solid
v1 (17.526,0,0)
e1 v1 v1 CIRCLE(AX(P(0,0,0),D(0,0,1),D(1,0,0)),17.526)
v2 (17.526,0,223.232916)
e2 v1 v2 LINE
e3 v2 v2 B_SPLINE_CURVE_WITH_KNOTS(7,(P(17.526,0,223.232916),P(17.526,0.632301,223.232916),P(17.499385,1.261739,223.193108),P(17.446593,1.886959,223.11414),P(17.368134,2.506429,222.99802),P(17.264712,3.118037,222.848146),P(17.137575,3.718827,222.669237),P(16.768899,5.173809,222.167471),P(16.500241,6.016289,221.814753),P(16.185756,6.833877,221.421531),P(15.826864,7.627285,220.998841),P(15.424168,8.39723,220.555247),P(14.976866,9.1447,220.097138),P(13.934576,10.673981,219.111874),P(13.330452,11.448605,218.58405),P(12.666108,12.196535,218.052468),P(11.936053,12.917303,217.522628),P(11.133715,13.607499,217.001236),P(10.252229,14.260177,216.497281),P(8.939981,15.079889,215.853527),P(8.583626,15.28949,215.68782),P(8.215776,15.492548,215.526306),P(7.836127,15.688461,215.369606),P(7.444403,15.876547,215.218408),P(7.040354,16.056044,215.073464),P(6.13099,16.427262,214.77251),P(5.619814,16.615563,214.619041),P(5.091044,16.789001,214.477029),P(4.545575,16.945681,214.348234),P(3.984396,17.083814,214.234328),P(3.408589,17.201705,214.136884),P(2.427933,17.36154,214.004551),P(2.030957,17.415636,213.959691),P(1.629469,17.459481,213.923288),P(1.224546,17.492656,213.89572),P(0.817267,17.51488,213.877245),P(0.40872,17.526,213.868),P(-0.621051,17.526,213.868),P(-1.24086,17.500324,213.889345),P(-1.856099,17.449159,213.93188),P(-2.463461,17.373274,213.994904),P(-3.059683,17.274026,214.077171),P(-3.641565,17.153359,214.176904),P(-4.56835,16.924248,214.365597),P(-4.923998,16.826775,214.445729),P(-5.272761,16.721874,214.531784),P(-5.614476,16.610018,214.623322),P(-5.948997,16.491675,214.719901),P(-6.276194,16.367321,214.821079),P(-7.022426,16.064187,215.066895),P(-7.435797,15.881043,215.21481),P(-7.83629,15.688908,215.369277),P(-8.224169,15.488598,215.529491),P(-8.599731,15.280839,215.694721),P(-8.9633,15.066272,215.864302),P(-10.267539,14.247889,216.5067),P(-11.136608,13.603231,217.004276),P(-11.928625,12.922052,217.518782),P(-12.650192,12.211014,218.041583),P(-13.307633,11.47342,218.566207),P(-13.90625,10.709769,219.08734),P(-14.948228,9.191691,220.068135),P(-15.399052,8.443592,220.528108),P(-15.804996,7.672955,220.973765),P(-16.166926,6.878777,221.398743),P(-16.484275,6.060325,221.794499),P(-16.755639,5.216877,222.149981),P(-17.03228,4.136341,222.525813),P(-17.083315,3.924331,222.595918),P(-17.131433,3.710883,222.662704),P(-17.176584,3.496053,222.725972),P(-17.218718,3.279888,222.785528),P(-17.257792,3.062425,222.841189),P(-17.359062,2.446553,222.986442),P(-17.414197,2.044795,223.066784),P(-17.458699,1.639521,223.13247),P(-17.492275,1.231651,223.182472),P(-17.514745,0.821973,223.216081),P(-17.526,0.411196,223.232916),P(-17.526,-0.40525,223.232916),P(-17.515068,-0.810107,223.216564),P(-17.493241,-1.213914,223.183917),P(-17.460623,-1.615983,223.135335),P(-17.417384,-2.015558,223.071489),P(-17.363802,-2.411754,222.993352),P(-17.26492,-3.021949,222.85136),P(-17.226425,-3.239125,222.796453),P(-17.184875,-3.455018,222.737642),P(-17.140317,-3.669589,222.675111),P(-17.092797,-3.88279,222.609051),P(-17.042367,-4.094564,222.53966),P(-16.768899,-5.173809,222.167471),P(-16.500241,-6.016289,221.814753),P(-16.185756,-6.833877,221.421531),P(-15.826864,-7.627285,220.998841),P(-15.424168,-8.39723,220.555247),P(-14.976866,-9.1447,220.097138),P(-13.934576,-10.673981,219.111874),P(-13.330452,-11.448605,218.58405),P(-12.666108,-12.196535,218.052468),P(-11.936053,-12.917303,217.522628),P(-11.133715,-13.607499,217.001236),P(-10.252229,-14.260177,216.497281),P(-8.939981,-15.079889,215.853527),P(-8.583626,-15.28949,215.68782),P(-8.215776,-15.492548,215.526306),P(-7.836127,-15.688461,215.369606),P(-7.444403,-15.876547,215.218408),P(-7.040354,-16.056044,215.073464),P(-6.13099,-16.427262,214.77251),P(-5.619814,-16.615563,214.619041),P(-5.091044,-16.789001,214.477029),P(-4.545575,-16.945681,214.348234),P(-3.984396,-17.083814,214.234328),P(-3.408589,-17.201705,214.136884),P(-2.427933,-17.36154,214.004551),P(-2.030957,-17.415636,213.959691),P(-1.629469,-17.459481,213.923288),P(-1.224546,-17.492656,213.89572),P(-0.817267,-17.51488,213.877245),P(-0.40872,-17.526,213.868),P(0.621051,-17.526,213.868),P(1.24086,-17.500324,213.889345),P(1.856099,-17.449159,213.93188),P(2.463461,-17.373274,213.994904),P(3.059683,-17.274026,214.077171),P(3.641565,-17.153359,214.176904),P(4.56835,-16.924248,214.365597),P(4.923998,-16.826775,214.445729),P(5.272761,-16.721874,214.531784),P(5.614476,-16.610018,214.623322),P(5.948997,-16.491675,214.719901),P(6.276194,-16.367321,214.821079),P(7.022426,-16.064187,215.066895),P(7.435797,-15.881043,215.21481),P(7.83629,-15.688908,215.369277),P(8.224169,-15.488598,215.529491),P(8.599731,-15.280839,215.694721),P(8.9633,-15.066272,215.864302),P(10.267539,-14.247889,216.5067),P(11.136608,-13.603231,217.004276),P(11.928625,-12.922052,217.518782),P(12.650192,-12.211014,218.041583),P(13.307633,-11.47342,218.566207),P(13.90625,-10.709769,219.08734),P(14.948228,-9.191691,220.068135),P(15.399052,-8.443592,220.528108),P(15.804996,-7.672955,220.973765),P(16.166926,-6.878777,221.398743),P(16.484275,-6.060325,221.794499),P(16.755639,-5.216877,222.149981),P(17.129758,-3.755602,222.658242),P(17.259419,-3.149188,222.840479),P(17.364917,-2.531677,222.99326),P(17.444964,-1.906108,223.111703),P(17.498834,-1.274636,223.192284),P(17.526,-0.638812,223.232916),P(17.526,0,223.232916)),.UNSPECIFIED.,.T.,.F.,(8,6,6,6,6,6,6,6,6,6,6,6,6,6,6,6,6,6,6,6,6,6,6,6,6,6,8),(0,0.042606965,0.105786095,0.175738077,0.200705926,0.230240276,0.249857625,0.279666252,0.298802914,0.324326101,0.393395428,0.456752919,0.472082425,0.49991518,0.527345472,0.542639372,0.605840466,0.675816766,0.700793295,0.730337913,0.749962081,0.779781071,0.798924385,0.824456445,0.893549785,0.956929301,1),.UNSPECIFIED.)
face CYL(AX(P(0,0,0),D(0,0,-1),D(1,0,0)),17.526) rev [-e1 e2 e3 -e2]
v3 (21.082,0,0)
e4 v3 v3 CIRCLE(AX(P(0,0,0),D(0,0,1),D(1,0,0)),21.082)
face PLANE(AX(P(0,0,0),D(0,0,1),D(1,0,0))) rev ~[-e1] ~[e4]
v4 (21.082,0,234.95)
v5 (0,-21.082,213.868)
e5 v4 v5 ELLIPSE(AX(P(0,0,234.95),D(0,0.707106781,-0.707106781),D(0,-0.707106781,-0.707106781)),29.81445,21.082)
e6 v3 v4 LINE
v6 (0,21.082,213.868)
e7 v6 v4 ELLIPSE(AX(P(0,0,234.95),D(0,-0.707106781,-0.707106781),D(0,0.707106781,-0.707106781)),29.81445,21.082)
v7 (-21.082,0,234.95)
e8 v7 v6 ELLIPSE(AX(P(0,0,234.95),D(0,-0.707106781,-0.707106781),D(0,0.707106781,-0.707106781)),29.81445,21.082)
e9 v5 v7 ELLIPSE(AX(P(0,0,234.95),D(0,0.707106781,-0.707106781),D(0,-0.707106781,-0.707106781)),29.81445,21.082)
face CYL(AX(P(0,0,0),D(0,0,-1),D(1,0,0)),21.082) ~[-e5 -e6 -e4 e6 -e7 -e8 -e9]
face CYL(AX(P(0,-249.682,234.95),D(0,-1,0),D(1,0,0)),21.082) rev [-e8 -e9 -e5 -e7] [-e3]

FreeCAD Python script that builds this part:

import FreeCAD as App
import Part
import Sketcher
from FreeCAD import Vector
Q = App.Units.Quantity

doc = App.newDocument("Part")
body = doc.addObject("PartDesign::Body", "Body")

sketch1 = body.newObject("Sketcher::SketchObject", "Sketch")
sketch1.AttachmentSupport = (doc.getObject("XY_Plane"), [""])
sketch1.MapMode = "FlatFace"
sketch1.addGeometry(Part.Circle(Vector(0, 0, 0), Vector(0, 0, 1), 21.082), False)
sketch1.addGeometry(Part.Circle(Vector(0, 0, 0), Vector(0, 0, 1), 17.526), False)
sketch1.addConstraint(Sketcher.Constraint("Coincident", 0, 3, -1, 1))
sketch1.addConstraint(Sketcher.Constraint("Coincident", 1, 3, -1, 1))
sketch1.addConstraint(Sketcher.Constraint("Diameter", 0, Q("1.66 in")))
sketch1.addConstraint(Sketcher.Constraint("Diameter", 1, Q("1.38 in")))
pad1 = body.newObject("PartDesign::Pad", "Pad")
pad1.Profile = sketch1
pad1.Length = Q("9.25 in")

sketch2 = body.newObject("Sketcher::SketchObject", "Sketch001")
sketch2.AttachmentSupport = (doc.getObject("XZ_Plane"), [""])
sketch2.MapMode = "FlatFace"
sketch2.AttachmentOffset = App.Placement(Vector(0, 0, 9.83 * 25.4), App.Rotation())
sketch2.addGeometry(Part.Circle(Vector(0, 234.95, 0), Vector(0, 0, 1), 21.082), False)
sketch2.addConstraint(Sketcher.Constraint("PointOnObject", 0, 3, -2))
sketch2.addConstraint(Sketcher.Constraint("Diameter", 0, Q("1.66 in")))
sketch2.addConstraint(Sketcher.Constraint("DistanceY", -1, 1, 0, 3, Q("9.25 in")))
pocket1 = body.newObject("PartDesign::Pocket", "Pocket")
pocket1.Profile = sketch2
pocket1.Length = Q("30 in")

doc.recompute()
